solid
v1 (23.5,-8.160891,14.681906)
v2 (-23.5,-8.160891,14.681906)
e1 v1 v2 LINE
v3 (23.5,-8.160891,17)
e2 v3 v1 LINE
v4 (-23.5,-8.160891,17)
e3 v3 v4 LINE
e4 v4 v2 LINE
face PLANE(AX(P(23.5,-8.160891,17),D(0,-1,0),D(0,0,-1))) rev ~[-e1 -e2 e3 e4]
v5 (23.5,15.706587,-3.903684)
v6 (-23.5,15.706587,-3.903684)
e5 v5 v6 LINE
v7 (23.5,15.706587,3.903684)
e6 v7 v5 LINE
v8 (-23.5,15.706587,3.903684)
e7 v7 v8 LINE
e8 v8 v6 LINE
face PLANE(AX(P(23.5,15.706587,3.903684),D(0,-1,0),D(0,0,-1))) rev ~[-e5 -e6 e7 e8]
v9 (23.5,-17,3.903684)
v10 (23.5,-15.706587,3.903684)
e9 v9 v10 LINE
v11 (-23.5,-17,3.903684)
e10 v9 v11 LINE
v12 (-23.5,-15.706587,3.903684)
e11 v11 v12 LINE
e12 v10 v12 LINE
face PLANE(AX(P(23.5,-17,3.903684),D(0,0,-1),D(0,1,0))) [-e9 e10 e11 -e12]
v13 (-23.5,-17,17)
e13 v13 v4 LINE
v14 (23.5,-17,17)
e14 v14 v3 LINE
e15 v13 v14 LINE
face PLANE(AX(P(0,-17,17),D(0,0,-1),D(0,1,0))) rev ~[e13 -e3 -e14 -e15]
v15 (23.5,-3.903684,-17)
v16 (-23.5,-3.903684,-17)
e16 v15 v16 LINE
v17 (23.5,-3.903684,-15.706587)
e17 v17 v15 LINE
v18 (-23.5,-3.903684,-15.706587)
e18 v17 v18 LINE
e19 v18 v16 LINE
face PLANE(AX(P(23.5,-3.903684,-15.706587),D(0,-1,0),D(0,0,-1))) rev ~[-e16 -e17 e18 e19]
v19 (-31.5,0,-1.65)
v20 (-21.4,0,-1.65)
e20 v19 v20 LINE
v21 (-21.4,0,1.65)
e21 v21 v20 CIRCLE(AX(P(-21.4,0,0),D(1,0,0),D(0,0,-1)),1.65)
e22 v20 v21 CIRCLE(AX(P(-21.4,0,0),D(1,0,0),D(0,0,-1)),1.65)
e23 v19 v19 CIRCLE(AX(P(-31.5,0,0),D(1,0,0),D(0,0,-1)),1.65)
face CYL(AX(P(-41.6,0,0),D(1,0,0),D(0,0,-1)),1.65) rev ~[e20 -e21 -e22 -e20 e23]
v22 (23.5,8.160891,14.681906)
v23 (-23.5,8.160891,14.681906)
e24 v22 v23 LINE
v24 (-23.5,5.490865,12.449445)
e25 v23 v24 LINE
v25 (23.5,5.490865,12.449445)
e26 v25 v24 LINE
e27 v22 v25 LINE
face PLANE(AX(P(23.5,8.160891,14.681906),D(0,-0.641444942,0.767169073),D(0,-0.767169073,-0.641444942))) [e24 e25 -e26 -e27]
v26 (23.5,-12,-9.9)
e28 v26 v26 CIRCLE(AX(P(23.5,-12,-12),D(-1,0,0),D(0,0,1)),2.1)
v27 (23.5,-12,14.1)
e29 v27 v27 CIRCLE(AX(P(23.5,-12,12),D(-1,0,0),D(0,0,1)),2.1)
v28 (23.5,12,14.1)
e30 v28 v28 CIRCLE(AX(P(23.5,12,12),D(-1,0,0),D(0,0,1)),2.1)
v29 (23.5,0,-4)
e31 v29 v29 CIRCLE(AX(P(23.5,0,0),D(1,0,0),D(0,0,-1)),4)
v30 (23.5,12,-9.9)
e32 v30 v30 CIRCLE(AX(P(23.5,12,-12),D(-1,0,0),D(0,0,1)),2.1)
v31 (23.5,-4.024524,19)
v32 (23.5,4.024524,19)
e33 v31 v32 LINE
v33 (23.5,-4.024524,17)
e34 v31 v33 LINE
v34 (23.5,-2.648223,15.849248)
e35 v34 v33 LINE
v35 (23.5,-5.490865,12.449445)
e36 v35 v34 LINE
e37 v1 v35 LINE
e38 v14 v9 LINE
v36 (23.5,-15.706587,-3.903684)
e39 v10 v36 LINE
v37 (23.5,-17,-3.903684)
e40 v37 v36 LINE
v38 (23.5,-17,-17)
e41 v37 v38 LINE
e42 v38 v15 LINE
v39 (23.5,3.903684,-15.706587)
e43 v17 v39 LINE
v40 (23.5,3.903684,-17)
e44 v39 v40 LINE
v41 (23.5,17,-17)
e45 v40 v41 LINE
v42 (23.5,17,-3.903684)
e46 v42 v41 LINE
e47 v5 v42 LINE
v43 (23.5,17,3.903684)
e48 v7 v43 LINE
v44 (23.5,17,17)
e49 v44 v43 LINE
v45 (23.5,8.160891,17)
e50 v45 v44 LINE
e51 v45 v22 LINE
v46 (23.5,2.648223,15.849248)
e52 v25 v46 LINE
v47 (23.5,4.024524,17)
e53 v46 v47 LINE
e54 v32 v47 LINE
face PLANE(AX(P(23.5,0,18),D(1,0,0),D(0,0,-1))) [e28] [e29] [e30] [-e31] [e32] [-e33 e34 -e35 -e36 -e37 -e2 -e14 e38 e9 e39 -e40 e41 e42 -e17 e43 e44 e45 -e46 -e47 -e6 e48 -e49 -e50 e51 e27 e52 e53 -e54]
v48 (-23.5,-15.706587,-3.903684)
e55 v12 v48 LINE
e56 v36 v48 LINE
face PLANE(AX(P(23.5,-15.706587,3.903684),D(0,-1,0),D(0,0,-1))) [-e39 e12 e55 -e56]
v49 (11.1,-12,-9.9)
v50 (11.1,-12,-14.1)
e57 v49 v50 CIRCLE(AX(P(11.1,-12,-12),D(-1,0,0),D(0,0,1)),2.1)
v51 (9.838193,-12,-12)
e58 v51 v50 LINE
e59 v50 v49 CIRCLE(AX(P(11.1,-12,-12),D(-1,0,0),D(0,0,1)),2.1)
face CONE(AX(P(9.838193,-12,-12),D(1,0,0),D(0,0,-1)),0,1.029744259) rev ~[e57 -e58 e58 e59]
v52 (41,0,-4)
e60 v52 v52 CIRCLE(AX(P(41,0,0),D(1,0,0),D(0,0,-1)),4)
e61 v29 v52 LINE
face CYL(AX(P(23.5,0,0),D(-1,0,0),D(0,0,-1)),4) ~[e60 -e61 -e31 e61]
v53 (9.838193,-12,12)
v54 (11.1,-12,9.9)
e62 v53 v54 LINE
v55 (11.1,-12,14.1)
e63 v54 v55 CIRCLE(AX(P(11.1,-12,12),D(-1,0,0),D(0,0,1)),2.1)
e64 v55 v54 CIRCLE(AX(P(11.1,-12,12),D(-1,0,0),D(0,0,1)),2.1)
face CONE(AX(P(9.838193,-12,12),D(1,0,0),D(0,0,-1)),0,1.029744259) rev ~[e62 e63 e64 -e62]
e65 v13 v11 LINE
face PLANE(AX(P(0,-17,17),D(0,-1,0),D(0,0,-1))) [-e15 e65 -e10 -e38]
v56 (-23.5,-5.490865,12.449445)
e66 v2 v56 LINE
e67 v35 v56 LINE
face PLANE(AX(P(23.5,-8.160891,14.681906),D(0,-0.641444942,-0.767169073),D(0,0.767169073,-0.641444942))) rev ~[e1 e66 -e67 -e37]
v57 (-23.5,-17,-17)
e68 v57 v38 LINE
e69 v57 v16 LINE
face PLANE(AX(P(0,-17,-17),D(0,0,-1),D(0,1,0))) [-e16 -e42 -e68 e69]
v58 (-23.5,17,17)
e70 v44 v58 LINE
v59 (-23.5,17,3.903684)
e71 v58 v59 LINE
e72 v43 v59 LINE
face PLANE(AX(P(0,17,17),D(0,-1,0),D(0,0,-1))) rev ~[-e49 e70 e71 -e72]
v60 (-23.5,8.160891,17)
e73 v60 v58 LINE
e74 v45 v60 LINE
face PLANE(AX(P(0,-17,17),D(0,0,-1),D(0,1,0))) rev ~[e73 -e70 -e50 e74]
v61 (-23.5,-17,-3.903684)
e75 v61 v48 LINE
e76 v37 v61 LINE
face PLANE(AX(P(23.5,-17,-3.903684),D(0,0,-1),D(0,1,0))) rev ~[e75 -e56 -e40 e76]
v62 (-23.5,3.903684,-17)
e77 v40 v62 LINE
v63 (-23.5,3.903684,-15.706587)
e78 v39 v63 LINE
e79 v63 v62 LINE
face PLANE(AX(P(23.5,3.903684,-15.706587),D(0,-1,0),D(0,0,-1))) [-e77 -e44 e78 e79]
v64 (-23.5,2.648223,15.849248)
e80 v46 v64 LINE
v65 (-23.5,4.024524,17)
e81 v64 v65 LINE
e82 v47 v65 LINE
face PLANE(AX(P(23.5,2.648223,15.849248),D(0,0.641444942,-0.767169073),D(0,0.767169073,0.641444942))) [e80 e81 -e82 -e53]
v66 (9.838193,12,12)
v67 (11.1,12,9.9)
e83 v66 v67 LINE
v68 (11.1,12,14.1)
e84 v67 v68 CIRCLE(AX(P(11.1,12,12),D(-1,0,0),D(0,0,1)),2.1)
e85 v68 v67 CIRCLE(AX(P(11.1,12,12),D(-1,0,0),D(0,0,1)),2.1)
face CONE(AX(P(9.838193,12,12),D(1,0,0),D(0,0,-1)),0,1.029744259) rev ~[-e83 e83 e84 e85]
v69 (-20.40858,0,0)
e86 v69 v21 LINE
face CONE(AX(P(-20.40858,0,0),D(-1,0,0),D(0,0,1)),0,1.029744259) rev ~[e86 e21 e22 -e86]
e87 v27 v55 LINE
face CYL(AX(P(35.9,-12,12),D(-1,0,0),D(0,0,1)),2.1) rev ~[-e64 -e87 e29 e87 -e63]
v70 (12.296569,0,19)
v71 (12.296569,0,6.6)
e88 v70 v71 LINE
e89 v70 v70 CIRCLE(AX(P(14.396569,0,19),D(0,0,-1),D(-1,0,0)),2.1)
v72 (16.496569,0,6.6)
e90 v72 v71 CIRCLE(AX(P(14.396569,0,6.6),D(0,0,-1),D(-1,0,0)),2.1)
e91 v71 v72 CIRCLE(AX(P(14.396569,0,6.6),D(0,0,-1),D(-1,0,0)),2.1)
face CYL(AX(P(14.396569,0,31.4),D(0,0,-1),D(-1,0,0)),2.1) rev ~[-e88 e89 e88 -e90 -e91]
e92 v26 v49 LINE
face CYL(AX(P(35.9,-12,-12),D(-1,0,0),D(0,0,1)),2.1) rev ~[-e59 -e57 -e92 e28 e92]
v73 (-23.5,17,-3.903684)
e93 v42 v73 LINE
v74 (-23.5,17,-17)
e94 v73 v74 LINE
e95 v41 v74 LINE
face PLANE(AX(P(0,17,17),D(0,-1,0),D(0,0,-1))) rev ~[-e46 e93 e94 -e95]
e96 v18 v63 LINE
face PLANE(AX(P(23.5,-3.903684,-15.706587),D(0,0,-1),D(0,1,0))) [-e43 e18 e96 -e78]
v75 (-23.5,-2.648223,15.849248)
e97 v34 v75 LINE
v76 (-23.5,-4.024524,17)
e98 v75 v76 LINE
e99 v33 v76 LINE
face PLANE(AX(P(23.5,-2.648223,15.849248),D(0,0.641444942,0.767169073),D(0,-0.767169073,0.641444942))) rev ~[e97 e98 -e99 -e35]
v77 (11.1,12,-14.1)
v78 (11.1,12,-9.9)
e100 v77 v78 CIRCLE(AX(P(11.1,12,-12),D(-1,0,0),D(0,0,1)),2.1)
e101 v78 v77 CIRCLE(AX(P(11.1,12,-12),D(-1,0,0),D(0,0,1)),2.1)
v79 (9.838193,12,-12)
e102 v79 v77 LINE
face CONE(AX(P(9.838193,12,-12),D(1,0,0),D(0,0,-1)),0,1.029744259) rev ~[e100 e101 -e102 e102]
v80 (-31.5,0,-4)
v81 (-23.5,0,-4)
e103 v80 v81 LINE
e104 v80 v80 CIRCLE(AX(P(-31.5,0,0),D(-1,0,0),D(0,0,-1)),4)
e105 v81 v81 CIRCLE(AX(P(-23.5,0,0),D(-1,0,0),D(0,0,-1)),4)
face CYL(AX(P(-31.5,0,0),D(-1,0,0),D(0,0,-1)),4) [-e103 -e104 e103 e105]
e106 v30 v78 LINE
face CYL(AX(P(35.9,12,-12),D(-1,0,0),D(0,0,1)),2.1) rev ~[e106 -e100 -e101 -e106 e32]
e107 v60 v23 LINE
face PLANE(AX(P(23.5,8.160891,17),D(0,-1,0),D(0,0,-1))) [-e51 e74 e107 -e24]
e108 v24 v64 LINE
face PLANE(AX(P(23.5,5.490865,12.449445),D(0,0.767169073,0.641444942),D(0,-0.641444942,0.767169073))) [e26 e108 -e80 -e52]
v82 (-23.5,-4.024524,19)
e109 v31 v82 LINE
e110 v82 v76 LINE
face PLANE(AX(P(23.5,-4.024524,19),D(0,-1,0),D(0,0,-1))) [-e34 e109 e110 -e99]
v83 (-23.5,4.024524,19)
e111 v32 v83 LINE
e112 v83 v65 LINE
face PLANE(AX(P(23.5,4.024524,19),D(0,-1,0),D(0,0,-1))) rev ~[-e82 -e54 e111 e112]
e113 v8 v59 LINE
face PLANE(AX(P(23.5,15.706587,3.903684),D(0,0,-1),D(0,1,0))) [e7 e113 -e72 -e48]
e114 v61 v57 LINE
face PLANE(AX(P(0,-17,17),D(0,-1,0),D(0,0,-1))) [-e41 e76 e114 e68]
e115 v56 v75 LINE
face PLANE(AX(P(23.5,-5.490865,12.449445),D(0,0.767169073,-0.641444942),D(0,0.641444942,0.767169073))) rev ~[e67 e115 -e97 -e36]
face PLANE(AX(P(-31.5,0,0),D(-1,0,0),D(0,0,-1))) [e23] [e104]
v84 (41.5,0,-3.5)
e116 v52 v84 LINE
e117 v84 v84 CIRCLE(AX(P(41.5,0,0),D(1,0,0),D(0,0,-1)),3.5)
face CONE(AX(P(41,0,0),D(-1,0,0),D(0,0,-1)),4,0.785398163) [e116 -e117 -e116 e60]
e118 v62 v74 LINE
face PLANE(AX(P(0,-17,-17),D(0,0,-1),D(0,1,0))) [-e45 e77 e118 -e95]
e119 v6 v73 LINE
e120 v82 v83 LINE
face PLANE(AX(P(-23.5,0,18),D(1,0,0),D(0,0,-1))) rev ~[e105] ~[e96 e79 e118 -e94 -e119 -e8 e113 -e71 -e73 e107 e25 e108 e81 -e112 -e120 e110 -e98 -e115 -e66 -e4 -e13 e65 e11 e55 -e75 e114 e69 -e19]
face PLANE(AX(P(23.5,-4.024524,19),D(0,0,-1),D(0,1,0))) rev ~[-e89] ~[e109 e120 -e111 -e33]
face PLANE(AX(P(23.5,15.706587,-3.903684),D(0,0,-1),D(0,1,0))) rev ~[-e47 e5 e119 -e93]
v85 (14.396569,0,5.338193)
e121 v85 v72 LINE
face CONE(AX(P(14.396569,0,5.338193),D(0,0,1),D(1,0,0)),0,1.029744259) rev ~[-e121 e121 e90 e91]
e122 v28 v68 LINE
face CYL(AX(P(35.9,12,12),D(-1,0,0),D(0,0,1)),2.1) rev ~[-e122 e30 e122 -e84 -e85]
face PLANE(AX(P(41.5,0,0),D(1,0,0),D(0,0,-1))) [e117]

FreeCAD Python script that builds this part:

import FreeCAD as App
import Part
import Sketcher
Q = App.Units.Quantity


def edges_at(feature, points):
    """Names of the edges that pass closest to the given points."""
    edges = feature.Shape.Edges
    near = lambda p: min(range(len(edges)), key=lambda i: edges[i].distToShape(Part.Vertex(*p))[0])
    return sorted({f"Edge{near(p) + 1}" for p in points})

doc = App.newDocument("Part")
body = doc.addObject("PartDesign::Body", "Body")

sketch1 = body.newObject("Sketcher::SketchObject", "Sketch")
sketch1.AttachmentSupport = (doc.getObject("YZ_Plane"), [""])
sketch1.MapMode = "FlatFace"
sketch1.addGeometry([
    Part.LineSegment(App.Vector(17, 17, 0), App.Vector(-17, 17, 0)),
    Part.LineSegment(App.Vector(-17, 17, 0), App.Vector(-17, -17, 0)),
    Part.LineSegment(App.Vector(-17, -17, 0), App.Vector(17, -17, 0)),
    Part.LineSegment(App.Vector(17, -17, 0), App.Vector(17, 17, 0)),
], False)
sketch1.addConstraint([
    Sketcher.Constraint("Coincident", 0, 2, 1, 1),
    Sketcher.Constraint("Coincident", 1, 2, 2, 1),
    Sketcher.Constraint("Coincident", 2, 2, 3, 1),
    Sketcher.Constraint("Coincident", 3, 2, 0, 1),
    Sketcher.Constraint("Horizontal", 0),
    Sketcher.Constraint("Vertical", 1),
    Sketcher.Constraint("Horizontal", 2),
    Sketcher.Constraint("Vertical", 3),
    Sketcher.Constraint("Symmetric", 0, 2, 2, 2, -1, 1),
    Sketcher.Constraint("Equal", 2, 1),
    Sketcher.Constraint("DistanceX", 0, 2, 0, 1, Q("34 mm")),
])
pad1 = body.newObject("PartDesign::Pad", "Pad")
pad1.Profile = sketch1
pad1.Length = 47
pad1.Midplane = True

sketch2 = body.newObject("Sketcher::SketchObject", "Sketch001")
sketch2.AttachmentSupport = (doc.getObject("YZ_Plane"), [""])
sketch2.MapMode = "FlatFace"
sketch2.AttachmentOffset = App.Placement(App.Vector(0, 0, 23.5), App.Rotation())
sketch2.addGeometry([
    Part.LineSegment(App.Vector(17, 3.9, 0), App.Vector(15.7, 3.9, 0)),
    Part.LineSegment(App.Vector(15.7, 3.9, 0), App.Vector(15.7, -3.9, 0)),
    Part.LineSegment(App.Vector(15.7, -3.9, 0), App.Vector(17, -3.9, 0)),
    Part.LineSegment(App.Vector(17, -3.9, 0), App.Vector(17, 3.9, 0)),
    Part.LineSegment(App.Vector(-15.7, 3.9, 0), App.Vector(-17, 3.9, 0)),
    Part.LineSegment(App.Vector(-17, 3.9, 0), App.Vector(-17, -3.9, 0)),
    Part.LineSegment(App.Vector(-17, -3.9, 0), App.Vector(-15.7, -3.9, 0)),
    Part.LineSegment(App.Vector(-15.7, -3.9, 0), App.Vector(-15.7, 3.9, 0)),
    Part.LineSegment(App.Vector(3.9, -15.7, 0), App.Vector(-3.9, -15.7, 0)),
    Part.LineSegment(App.Vector(-3.9, -15.7, 0), App.Vector(-3.9, -17, 0)),
    Part.LineSegment(App.Vector(-3.9, -17, 0), App.Vector(3.9, -17, 0)),
    Part.LineSegment(App.Vector(3.9, -17, 0), App.Vector(3.9, -15.7, 0)),
], False)
sketch2.addConstraint([
    Sketcher.Constraint("Coincident", 0, 2, 1, 1),
    Sketcher.Constraint("Coincident", 1, 2, 2, 1),
    Sketcher.Constraint("Coincident", 2, 2, 3, 1),
    Sketcher.Constraint("Coincident", 3, 2, 0, 1),
    Sketcher.Constraint("Coincident", 4, 2, 5, 1),
    Sketcher.Constraint("Coincident", 5, 2, 6, 1),
    Sketcher.Constraint("Coincident", 6, 2, 7, 1),
    Sketcher.Constraint("Coincident", 7, 2, 4, 1),
    Sketcher.Constraint("Coincident", 8, 2, 9, 1),
    Sketcher.Constraint("Coincident", 9, 2, 10, 1),
    Sketcher.Constraint("Coincident", 10, 2, 11, 1),
    Sketcher.Constraint("Coincident", 11, 2, 8, 1),
    Sketcher.Constraint("Horizontal", 0),
    Sketcher.Constraint("Vertical", 1),
    Sketcher.Constraint("Horizontal", 2),
    Sketcher.Constraint("Vertical", 3),
    Sketcher.Constraint("Horizontal", 4),
    Sketcher.Constraint("Vertical", 5),
    Sketcher.Constraint("Horizontal", 6),
    Sketcher.Constraint("Vertical", 7),
    Sketcher.Constraint("Horizontal", 8),
    Sketcher.Constraint("Vertical", 9),
    Sketcher.Constraint("Horizontal", 10),
    Sketcher.Constraint("Vertical", 11),
    Sketcher.Constraint("Symmetric", 2, 2, 4, 2, -1, 1),
    Sketcher.Constraint("Symmetric", 0, 2, 6, 2, -1, 1),
    Sketcher.Constraint("Horizontal", 3, 2, 4, 2),
    Sketcher.Constraint("Equal", 10, 1),
    Sketcher.Constraint("Equal", 6, 9),
    Sketcher.Constraint("DistanceX", -1, 1, 2, 2, Q("17 mm")),
    Sketcher.Constraint("DistanceY", 9, 2, -1, 1, Q("17 mm")),
    Sketcher.Constraint("DistanceX", 0, 2, 0, 1, Q("1.293413 mm")),
    Sketcher.Constraint("DistanceX", 8, 2, 8, 1, Q("7.807368 mm")),
    Sketcher.Constraint("DistanceX", 8, 2, 1, 2, Q("19.610271 mm")),
])
pocket1 = body.newObject("PartDesign::Pocket", "Pocket")
pocket1.Profile = sketch2
pocket1.Type = "ThroughAll"

sketch3 = body.newObject("Sketcher::SketchObject", "Sketch002")
sketch3.AttachmentSupport = (doc.getObject("YZ_Plane"), [""])
sketch3.MapMode = "FlatFace"
sketch3.AttachmentOffset = App.Placement(App.Vector(0, 0, 23.5), App.Rotation())
sketch3.addGeometry([
    Part.LineSegment(App.Vector(8.2, 14.7, 0), App.Vector(8.2, 17, 0)),
    Part.LineSegment(App.Vector(8.2, 17, 0), App.Vector(4, 17, 0)),
    Part.LineSegment(App.Vector(4, 17, 0), App.Vector(2.6, 15.8, 0)),
    Part.LineSegment(App.Vector(2.6, 15.8, 0), App.Vector(5.5, 12.4, 0)),
    Part.LineSegment(App.Vector(5.5, 12.4, 0), App.Vector(8.2, 14.7, 0)),
    Part.LineSegment(App.Vector(-4, 17, 0), App.Vector(-8.2, 17, 0)),
    Part.LineSegment(App.Vector(-8.2, 17, 0), App.Vector(-8.2, 14.7, 0)),
    Part.LineSegment(App.Vector(-8.2, 14.7, 0), App.Vector(-5.5, 12.4, 0)),
    Part.LineSegment(App.Vector(-5.5, 12.4, 0), App.Vector(-2.6, 15.8, 0)),
    Part.LineSegment(App.Vector(-2.6, 15.8, 0), App.Vector(-4, 17, 0)),
], False)
sketch3.addConstraint([
    Sketcher.Constraint("Coincident", 0, 2, 1, 1),
    Sketcher.Constraint("Coincident", 1, 2, 2, 1),
    Sketcher.Constraint("Coincident", 2, 2, 3, 1),
    Sketcher.Constraint("Coincident", 3, 2, 4, 1),
    Sketcher.Constraint("Coincident", 4, 2, 0, 1),
    Sketcher.Constraint("Coincident", 5, 2, 6, 1),
    Sketcher.Constraint("Coincident", 6, 2, 7, 1),
    Sketcher.Constraint("Coincident", 7, 2, 8, 1),
    Sketcher.Constraint("Coincident", 8, 2, 9, 1),
    Sketcher.Constraint("Coincident", 9, 2, 5, 1),
    Sketcher.Constraint("Vertical", 0),
    Sketcher.Constraint("Horizontal", 1),
    Sketcher.Constraint("Horizontal", 5),
    Sketcher.Constraint("Vertical", 6),
    Sketcher.Constraint("Symmetric", 0, 2, 5, 2, -2),
    Sketcher.Constraint("Symmetric", 3, 2, 7, 2, -2),
    Sketcher.Constraint("Symmetric", 2, 2, 8, 2, -2),
    Sketcher.Constraint("Perpendicular", 2, 3),
    Sketcher.Constraint("Perpendicular", 3, 4),
    Sketcher.Constraint("Perpendicular", 7, 8),
    Sketcher.Constraint("Perpendicular", 8, 9),
    Sketcher.Constraint("DistanceY", -1, 1, 0, 2, Q("17 mm")),
    Sketcher.Constraint("Distance", 2, Q("1.794 mm")),
    Sketcher.Constraint("DistanceX", 2, 2, 1, 2, Q("1.376301 mm")),
    Sketcher.Constraint("Distance", 3, Q("4.431622 mm")),
    Sketcher.Constraint("DistanceX", 1, 2, 1, 1, Q("4.136367 mm")),
    Sketcher.Constraint("DistanceX", -1, 1, 0, 2, Q("8.160891 mm")),
])
pocket2 = body.newObject("PartDesign::Pocket", "Pocket001")
pocket2.Profile = sketch3
pocket2.Type = "ThroughAll"

sketch4 = body.newObject("Sketcher::SketchObject", "Sketch003")
sketch4.AttachmentSupport = (doc.getObject("YZ_Plane"), [""])
sketch4.MapMode = "FlatFace"
sketch4.AttachmentOffset = App.Placement(App.Vector(0, 0, 23.5), App.Rotation())
sketch4.addGeometry([
    Part.LineSegment(App.Vector(4, 19, 0), App.Vector(-4, 19, 0)),
    Part.LineSegment(App.Vector(-4, 19, 0), App.Vector(-4, 17, 0)),
    Part.LineSegment(App.Vector(-4, 17, 0), App.Vector(4, 17, 0)),
    Part.LineSegment(App.Vector(4, 17, 0), App.Vector(4, 19, 0)),
], False)
sketch4.addConstraint([
    Sketcher.Constraint("Coincident", 0, 2, 1, 1),
    Sketcher.Constraint("Coincident", 1, 2, 2, 1),
    Sketcher.Constraint("Coincident", 2, 2, 3, 1),
    Sketcher.Constraint("Coincident", 3, 2, 0, 1),
    Sketcher.Constraint("Horizontal", 0),
    Sketcher.Constraint("Vertical", 1),
    Sketcher.Constraint("Horizontal", 2),
    Sketcher.Constraint("Vertical", 3),
    Sketcher.Constraint("DistanceY", 1, 2, 1, 1, Q("2 mm")),
    Sketcher.Constraint("DistanceY", -1, 1, 0, 2, Q("19 mm")),
    Sketcher.Constraint("DistanceX", 0, 2, 0, 1, Q("8.049049 mm")),
    Sketcher.Constraint("DistanceX", 0, 2, -1, 1, Q("4.024524 mm")),
])
pad2 = body.newObject("PartDesign::Pad", "Pad001")
pad2.Profile = sketch4
pad2.Length = 47
pad2.Reversed = True

sketch5 = body.newObject("Sketcher::SketchObject", "Sketch004")
sketch5.AttachmentSupport = (doc.getObject("XY_Plane"), [""])
sketch5.MapMode = "FlatFace"
sketch5.AttachmentOffset = App.Placement(App.Vector(0, 0, 19), App.Rotation())
sketch5.addGeometry(Part.Circle(App.Vector(14.4, 0, 0), App.Vector(0, 0, 1), 2.1), False)
sketch5.addConstraint([
    Sketcher.Constraint("PointOnObject", 0, 3, -1),
    Sketcher.Constraint("Diameter", 0, Q("4.2 mm")),
    Sketcher.Constraint("DistanceX", -1, 1, 0, 3, Q("14.396569 mm")),
])
doc.recompute()
hole = body.newObject("PartDesign::Hole", "Hole")
hole.Profile = sketch5
hole.ThreadType = "None"
hole.Diameter = 4.2
hole.DepthType = "Dimension"
hole.Depth = 12.4
hole.DrillPoint = "Angled"
hole.DrillPointAngle = 118

sketch6 = body.newObject("Sketcher::SketchObject", "Sketch005")
sketch6.AttachmentSupport = (doc.getObject("YZ_Plane"), [""])
sketch6.MapMode = "FlatFace"
sketch6.AttachmentOffset = App.Placement(App.Vector(0, 0, 23.5), App.Rotation())
sketch6.addGeometry(Part.Circle(App.Vector(0, 0, 0), App.Vector(0, 0, 1), 4), False)
sketch6.addConstraint([
    Sketcher.Constraint("Coincident", 0, 3, -1, 1),
    Sketcher.Constraint("Diameter", 0, Q("8 mm")),
])
pad3 = body.newObject("PartDesign::Pad", "Pad002")
pad3.Profile = sketch6
pad3.Length = 18

sketch7 = body.newObject("Sketcher::SketchObject", "Sketch006")
sketch7.AttachmentSupport = (doc.getObject("YZ_Plane"), [""])
sketch7.MapMode = "FlatFace"
sketch7.AttachmentOffset = App.Placement(App.Vector(0, 0, -31.5), App.Rotation())
sketch7.addGeometry(Part.Circle(App.Vector(0, 0, 0), App.Vector(0, 0, 1), 4), False)
sketch7.addConstraint([
    Sketcher.Constraint("Coincident", 0, 3, -1, 1),
    Sketcher.Constraint("Diameter", 0, Q("8 mm")),
])
pad4 = body.newObject("PartDesign::Pad", "Pad003")
pad4.Profile = sketch7
pad4.Length = 8

sketch8 = body.newObject("Sketcher::SketchObject", "Sketch007")
sketch8.AttachmentSupport = (doc.getObject("YZ_Plane"), [""])
sketch8.MapMode = "FlatFace"
sketch8.AttachmentOffset = App.Placement(App.Vector(0, 0, -31.5), App.Rotation())
sketch8.addGeometry(Part.Circle(App.Vector(0, 0, 0), App.Vector(0, 0, 1), 1.6), False)
sketch8.addConstraint([
    Sketcher.Constraint("Coincident", 0, 3, -1, 1),
    Sketcher.Constraint("Diameter", 0, Q("3.3 mm")),
])
doc.recompute()
hole2 = body.newObject("PartDesign::Hole", "Hole001")
hole2.Profile = sketch8
hole2.ThreadType = "None"
hole2.Diameter = 3.3
hole2.DepthType = "Dimension"
hole2.Depth = 10.1
hole2.DrillPoint = "Angled"
hole2.DrillPointAngle = 118
hole2.Reversed = True

sketch9 = body.newObject("Sketcher::SketchObject", "Sketch008")
sketch9.AttachmentSupport = (doc.getObject("YZ_Plane"), [""])
sketch9.MapMode = "FlatFace"
sketch9.AttachmentOffset = App.Placement(App.Vector(0, 0, 23.5), App.Rotation())
sketch9.addGeometry([
    Part.Circle(App.Vector(12, 12, 0), App.Vector(0, 0, 1), 2.1),
    Part.Circle(App.Vector(12, -12, 0), App.Vector(0, 0, 1), 2.1),
    Part.Circle(App.Vector(-12, -12, 0), App.Vector(0, 0, 1), 2.1),
    Part.Circle(App.Vector(-12, 12, 0), App.Vector(0, 0, 1), 2.1),
], False)
sketch9.addConstraint([
    Sketcher.Constraint("Equal", 0, 1),
    Sketcher.Constraint("Equal", 1, 2),
    Sketcher.Constraint("Equal", 2, 3),
    Sketcher.Constraint("Symmetric", 0, 3, 2, 3, -1, 1),
    Sketcher.Constraint("Symmetric", 1, 3, 3, 3, -1, 1),
    Sketcher.Constraint("Symmetric", 1, 3, 2, 3, -2),
    Sketcher.Constraint("Diameter", 0, Q("4.2 mm")),
    Sketcher.Constraint("DistanceX", -1, 1, 0, 3, Q("12 mm")),
    Sketcher.Constraint("DistanceY", -1, 1, 0, 3, Q("12 mm")),
])
doc.recompute()
hole3 = body.newObject("PartDesign::Hole", "Hole002")
hole3.Profile = sketch9
hole3.ThreadType = "None"
hole3.Diameter = 4.2
hole3.DepthType = "Dimension"
hole3.Depth = 12.4
hole3.DrillPoint = "Angled"
hole3.DrillPointAngle = 118
doc.recompute()

chamfer = body.newObject("PartDesign::Chamfer", "Chamfer")
chamfer.Base = (hole3, edges_at(hole3, [(41.5, 0, 4)]))
chamfer.Size = 0.5

doc.recompute()
